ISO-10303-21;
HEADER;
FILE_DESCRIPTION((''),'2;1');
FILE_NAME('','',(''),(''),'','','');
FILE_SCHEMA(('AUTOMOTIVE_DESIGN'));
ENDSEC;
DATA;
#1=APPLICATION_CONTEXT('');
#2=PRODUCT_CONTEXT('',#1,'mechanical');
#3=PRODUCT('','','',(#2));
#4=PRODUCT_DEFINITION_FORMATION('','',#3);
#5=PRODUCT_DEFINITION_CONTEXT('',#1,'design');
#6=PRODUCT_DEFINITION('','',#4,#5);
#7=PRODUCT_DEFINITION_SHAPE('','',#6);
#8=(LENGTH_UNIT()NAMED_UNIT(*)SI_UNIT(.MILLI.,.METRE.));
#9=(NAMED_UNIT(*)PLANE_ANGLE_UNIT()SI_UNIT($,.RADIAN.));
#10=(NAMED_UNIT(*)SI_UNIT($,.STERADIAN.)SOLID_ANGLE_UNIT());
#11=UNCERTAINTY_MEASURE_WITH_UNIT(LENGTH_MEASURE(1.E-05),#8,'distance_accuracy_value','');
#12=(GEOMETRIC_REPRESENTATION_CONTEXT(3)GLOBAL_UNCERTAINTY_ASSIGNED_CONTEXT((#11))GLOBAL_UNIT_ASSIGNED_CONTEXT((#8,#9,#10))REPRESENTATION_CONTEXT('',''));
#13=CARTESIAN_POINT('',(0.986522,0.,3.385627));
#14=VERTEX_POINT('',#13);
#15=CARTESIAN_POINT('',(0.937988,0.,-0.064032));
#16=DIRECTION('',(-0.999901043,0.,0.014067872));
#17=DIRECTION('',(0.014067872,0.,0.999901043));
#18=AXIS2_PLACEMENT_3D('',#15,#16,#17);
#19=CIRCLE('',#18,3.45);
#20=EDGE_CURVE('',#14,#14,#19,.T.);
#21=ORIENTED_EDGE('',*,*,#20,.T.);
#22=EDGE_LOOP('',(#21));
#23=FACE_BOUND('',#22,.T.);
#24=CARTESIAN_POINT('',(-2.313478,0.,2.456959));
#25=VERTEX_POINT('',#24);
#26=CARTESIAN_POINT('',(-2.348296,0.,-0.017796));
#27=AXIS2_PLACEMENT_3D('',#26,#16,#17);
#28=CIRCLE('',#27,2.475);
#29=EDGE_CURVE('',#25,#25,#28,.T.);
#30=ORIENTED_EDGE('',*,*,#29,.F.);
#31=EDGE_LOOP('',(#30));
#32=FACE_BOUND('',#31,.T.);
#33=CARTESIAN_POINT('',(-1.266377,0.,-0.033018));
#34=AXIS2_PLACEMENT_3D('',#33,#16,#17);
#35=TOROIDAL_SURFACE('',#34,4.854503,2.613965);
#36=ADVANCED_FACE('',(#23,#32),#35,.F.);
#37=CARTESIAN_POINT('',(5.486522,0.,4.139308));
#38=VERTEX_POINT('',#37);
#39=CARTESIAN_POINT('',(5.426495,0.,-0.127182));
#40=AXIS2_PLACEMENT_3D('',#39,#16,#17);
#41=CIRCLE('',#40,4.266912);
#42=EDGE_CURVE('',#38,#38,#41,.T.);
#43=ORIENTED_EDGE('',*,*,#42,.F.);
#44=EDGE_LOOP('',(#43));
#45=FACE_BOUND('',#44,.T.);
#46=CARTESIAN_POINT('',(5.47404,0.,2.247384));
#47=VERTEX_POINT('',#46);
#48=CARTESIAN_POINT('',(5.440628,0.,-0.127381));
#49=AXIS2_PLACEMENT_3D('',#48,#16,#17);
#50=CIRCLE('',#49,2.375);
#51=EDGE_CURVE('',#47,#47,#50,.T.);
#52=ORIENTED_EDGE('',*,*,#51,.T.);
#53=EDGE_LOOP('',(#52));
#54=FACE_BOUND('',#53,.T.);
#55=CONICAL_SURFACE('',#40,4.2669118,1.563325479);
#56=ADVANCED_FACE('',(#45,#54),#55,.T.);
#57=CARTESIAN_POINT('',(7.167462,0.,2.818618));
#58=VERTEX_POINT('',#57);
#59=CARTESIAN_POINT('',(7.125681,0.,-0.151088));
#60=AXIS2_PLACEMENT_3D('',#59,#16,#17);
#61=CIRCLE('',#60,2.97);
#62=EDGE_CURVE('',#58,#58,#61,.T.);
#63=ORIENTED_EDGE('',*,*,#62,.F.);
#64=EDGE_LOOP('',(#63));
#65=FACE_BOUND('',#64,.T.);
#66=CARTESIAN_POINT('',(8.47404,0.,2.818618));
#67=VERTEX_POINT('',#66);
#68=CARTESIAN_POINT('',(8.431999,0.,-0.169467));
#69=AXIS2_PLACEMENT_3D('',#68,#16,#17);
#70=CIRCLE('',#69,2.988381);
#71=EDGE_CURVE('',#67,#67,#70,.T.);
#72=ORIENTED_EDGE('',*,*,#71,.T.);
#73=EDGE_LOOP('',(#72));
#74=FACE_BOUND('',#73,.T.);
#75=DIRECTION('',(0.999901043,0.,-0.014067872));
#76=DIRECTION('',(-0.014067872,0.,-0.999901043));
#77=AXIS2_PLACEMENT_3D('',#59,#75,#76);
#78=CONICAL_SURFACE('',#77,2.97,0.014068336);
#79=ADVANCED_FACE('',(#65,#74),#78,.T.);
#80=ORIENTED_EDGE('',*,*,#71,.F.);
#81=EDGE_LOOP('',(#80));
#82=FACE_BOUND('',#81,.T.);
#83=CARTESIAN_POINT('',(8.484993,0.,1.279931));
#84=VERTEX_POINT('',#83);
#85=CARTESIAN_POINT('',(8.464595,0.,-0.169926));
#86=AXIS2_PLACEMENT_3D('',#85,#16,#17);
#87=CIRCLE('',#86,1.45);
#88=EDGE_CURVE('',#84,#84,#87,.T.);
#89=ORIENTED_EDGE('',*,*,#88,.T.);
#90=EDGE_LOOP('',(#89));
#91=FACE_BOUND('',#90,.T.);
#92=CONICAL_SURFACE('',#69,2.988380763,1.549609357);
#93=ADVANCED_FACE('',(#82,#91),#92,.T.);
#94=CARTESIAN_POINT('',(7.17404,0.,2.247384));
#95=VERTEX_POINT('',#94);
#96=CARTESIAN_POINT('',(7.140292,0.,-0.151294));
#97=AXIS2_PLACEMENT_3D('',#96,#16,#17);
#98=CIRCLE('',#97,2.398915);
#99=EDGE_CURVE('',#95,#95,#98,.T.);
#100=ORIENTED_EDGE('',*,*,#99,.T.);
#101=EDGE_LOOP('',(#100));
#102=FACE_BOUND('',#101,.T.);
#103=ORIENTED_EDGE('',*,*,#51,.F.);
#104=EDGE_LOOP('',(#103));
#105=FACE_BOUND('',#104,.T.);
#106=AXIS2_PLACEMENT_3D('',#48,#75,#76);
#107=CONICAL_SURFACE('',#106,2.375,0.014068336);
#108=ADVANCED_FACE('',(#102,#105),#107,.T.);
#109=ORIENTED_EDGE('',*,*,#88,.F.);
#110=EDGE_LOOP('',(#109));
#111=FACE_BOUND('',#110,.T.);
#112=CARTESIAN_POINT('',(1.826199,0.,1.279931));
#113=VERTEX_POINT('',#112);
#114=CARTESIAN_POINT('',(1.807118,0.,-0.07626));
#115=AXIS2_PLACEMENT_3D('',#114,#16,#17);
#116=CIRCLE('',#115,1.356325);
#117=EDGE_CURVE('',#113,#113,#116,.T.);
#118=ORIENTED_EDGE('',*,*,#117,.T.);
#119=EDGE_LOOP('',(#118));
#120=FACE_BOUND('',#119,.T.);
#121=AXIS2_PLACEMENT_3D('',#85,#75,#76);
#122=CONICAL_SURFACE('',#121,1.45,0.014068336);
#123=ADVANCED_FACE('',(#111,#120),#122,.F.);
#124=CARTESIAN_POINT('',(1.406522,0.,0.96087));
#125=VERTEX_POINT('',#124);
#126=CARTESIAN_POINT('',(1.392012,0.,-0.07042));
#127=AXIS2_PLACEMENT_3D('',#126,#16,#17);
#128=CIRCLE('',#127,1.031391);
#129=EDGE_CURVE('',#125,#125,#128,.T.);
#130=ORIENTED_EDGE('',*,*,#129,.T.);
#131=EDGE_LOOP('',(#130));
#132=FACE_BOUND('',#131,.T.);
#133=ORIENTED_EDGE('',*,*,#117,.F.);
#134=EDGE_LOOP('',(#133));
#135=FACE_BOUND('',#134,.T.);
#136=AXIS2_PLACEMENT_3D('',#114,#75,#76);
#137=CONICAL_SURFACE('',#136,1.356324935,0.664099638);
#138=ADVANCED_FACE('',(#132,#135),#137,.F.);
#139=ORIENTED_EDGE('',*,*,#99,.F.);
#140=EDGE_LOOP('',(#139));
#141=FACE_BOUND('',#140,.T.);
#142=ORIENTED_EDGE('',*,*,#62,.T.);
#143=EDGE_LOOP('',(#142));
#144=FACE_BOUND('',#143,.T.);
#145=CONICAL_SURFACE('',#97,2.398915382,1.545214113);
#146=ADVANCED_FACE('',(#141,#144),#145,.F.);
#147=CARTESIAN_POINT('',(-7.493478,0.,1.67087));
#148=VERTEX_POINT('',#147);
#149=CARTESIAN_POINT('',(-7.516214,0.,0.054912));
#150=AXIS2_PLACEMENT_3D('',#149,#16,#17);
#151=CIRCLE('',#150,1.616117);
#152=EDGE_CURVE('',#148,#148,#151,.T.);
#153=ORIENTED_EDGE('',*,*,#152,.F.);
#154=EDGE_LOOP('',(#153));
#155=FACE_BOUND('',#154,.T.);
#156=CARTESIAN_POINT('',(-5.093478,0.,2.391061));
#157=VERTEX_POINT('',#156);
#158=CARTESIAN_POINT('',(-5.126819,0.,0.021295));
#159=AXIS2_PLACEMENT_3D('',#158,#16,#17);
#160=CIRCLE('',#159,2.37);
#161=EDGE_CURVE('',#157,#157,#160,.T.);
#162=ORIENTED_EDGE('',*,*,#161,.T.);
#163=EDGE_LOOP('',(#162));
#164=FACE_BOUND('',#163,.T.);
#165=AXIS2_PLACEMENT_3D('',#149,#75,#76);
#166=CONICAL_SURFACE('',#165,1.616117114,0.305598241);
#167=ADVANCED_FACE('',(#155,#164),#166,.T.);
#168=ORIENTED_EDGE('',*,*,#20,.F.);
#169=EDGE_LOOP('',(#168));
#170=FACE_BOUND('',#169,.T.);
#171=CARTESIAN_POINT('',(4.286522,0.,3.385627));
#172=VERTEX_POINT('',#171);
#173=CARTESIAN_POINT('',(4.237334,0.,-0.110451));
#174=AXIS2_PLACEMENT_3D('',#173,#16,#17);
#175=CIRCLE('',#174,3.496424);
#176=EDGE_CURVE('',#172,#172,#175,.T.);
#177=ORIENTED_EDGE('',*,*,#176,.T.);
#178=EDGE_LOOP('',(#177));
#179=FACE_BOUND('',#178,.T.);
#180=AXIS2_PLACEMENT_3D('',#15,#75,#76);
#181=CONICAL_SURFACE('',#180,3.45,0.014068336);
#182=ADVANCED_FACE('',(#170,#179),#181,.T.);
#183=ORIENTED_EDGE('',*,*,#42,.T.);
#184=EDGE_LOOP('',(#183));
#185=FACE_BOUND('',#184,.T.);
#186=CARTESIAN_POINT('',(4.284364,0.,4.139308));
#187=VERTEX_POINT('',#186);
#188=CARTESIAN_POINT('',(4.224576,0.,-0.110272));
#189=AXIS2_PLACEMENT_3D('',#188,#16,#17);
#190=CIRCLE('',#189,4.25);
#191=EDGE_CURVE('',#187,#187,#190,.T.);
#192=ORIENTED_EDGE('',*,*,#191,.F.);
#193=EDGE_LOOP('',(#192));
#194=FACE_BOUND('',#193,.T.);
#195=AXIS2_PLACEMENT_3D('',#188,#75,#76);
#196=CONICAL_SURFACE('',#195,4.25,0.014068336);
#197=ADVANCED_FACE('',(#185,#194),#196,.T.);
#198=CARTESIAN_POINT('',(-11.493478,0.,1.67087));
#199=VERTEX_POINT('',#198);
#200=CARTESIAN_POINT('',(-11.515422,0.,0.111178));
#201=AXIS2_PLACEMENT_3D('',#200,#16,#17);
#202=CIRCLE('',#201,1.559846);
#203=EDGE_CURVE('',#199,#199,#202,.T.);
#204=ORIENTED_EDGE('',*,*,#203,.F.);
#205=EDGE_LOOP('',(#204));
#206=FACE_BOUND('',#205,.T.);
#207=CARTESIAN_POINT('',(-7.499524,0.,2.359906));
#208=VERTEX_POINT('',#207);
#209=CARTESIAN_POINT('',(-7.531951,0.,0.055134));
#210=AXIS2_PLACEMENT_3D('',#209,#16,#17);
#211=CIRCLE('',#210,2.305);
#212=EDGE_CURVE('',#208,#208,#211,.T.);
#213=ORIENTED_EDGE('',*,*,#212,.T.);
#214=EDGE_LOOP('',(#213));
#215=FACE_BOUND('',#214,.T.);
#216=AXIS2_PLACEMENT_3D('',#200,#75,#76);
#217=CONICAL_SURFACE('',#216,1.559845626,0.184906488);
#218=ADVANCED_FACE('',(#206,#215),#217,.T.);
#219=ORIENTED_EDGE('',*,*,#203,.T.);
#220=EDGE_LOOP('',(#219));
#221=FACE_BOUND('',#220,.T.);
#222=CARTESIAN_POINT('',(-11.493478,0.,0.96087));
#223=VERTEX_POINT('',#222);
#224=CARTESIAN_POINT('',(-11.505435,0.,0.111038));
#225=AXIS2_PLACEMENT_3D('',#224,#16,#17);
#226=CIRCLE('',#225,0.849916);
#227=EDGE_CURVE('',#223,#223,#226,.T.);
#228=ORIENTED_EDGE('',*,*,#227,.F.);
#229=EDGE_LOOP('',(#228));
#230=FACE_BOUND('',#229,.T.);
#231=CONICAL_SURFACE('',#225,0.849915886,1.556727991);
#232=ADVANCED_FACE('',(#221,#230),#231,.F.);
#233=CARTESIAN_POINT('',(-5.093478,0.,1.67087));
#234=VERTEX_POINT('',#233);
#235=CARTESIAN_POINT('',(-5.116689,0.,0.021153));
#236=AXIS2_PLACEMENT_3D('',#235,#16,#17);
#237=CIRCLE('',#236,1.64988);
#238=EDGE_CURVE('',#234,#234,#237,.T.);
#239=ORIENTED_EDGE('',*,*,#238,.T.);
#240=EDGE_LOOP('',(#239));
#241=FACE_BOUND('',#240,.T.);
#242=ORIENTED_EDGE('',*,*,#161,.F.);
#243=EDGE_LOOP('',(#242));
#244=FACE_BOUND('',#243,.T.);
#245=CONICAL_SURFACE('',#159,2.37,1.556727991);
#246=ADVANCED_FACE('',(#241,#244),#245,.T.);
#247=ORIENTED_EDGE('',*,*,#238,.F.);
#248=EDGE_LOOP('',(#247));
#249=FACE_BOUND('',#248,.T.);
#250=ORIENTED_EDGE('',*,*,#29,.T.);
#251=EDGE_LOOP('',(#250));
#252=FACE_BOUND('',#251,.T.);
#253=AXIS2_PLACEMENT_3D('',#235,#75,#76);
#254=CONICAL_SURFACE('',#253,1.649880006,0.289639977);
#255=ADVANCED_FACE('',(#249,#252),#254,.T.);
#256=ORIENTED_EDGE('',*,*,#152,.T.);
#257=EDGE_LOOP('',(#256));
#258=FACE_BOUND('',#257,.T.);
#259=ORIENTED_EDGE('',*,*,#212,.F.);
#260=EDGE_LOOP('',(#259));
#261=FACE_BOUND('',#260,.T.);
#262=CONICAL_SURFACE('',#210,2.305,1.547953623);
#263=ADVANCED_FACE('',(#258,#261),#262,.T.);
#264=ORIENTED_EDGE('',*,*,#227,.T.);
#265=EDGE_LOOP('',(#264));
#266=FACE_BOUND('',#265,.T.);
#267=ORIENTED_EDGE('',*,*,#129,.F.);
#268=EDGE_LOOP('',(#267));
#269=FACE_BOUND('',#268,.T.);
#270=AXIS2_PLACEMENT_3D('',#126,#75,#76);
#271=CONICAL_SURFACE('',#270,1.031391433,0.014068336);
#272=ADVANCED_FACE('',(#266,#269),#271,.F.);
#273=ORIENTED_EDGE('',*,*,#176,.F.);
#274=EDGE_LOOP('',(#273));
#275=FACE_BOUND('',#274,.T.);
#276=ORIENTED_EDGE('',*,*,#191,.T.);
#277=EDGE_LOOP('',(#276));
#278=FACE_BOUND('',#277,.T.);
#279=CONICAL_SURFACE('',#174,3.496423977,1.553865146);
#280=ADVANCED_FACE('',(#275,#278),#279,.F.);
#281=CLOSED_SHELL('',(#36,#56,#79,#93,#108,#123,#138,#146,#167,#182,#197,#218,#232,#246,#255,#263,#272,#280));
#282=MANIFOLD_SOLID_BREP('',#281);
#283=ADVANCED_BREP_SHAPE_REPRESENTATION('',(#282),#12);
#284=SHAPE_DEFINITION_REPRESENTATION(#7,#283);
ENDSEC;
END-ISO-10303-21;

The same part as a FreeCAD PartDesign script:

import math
import FreeCAD as App
import Part
import Sketcher

doc = App.newDocument("Part")
body = doc.addObject("PartDesign::Body", "Body")

# Sketch on XZ plane
sketch1 = body.newObject("Sketcher::SketchObject", "Sketch")
sketch1.AttachmentSupport = (doc.getObject("XZ_Plane"), [""])
sketch1.MapMode = "FlatFace"
sketch1.addGeometry([
    Part.LineSegment(App.Vector(1.4, 1, 0), App.Vector(-11.5, 1, 0)),  # 0
    Part.LineSegment(App.Vector(-11.5, 1, 0), App.Vector(-11.5, 1.7, 0)),  # 1
    Part.LineSegment(App.Vector(-11.5, 1.7, 0), App.Vector(-7.5, 2.4, 0)),  # 2
    Part.LineSegment(App.Vector(-7.5, 2.4, 0), App.Vector(-7.5, 1.7, 0)),  # 3
    Part.LineSegment(App.Vector(-7.5, 1.7, 0), App.Vector(-5.1, 2.4, 0)),  # 4
    Part.LineSegment(App.Vector(-5.1, 2.4, 0), App.Vector(-5.1, 1.7, 0)),  # 5
    Part.LineSegment(App.Vector(-5.1, 1.7, 0), App.Vector(-2.3, 2.5, 0)),  # 6
    Part.ArcOfCircle(Part.Circle(App.Vector(-1.2, 4.8, 0), App.Vector(0, 0, 1), 2.6), math.radians(-115), math.radians(-33)),  # 7
    Part.LineSegment(App.Vector(1, 3.4, 0), App.Vector(4.3, 3.4, 0)),  # 8
    Part.LineSegment(App.Vector(4.3, 3.4, 0), App.Vector(4.3, 4.1, 0)),  # 9
    Part.LineSegment(App.Vector(4.3, 4.1, 0), App.Vector(5.5, 4.1, 0)),  # 10
    Part.LineSegment(App.Vector(5.5, 4.1, 0), App.Vector(5.5, 2.2, 0)),  # 11
    Part.LineSegment(App.Vector(5.5, 2.2, 0), App.Vector(7.2, 2.2, 0)),  # 12
    Part.LineSegment(App.Vector(7.2, 2.2, 0), App.Vector(7.2, 2.8, 0)),  # 13
    Part.LineSegment(App.Vector(7.2, 2.8, 0), App.Vector(8.5, 2.8, 0)),  # 14
    Part.LineSegment(App.Vector(8.5, 2.8, 0), App.Vector(8.5, 1.3, 0)),  # 15
    Part.LineSegment(App.Vector(8.5, 1.3, 0), App.Vector(1.8, 1.3, 0)),  # 16
    Part.LineSegment(App.Vector(1.8, 1.3, 0), App.Vector(1.4, 1, 0)),  # 17
], False)
sketch1.addGeometry(Part.LineSegment(App.Vector(-11.5, 0.1, 0), App.Vector(8.5, -0.2, 0)), True)  # axis
sketch1.addConstraint([
    Sketcher.Constraint("Coincident", 0, 2, 1, 1),
    Sketcher.Constraint("Coincident", 1, 2, 2, 1),
    Sketcher.Constraint("Coincident", 2, 2, 3, 1),
    Sketcher.Constraint("Coincident", 3, 2, 4, 1),
    Sketcher.Constraint("Coincident", 4, 2, 5, 1),
    Sketcher.Constraint("Coincident", 5, 2, 6, 1),
    Sketcher.Constraint("Coincident", 6, 2, 7, 1),
    Sketcher.Constraint("Coincident", 7, 2, 8, 1),
    Sketcher.Constraint("Coincident", 8, 2, 9, 1),
    Sketcher.Constraint("Coincident", 9, 2, 10, 1),
    Sketcher.Constraint("Coincident", 10, 2, 11, 1),
    Sketcher.Constraint("Coincident", 11, 2, 12, 1),
    Sketcher.Constraint("Coincident", 12, 2, 13, 1),
    Sketcher.Constraint("Coincident", 13, 2, 14, 1),
    Sketcher.Constraint("Coincident", 14, 2, 15, 1),
    Sketcher.Constraint("Coincident", 15, 2, 16, 1),
    Sketcher.Constraint("Coincident", 16, 2, 17, 1),
    Sketcher.Constraint("Coincident", 17, 2, 0, 1),
    Sketcher.Constraint("Horizontal", 0),
    Sketcher.Constraint("Vertical", 1),
    Sketcher.Constraint("Vertical", 5),
    Sketcher.Constraint("Horizontal", 8),
    Sketcher.Constraint("Horizontal", 10),
    Sketcher.Constraint("Horizontal", 12),
    Sketcher.Constraint("Horizontal", 14),
    Sketcher.Constraint("Horizontal", 16),
    Sketcher.Constraint("Horizontal", 1, 2, 3, 2),
    Sketcher.Constraint("Horizontal", 3, 2, 5, 2),
    Sketcher.Constraint("DistanceX", 0, 2, 0, 1, 12.9),
    Sketcher.Constraint("DistanceX", 8, 1, 8, 2, 3.3),
    Sketcher.Constraint("DistanceX", 12, 1, 12, 2, 1.7),
    Sketcher.Constraint("DistanceX", 1, 2, 3, 2, 4.0),
    Sketcher.Constraint("DistanceX", 11, 2, 14, 2, 3.0),
    Sketcher.Constraint("DistanceY", 1, 1, 1, 2, 0.71),
    Sketcher.Constraint("DistanceX", 3, 2, 4, 2, 2.4),
    Sketcher.Constraint("DistanceX", 6, 2, 7, 2, 3.3),
    Sketcher.Constraint("DistanceX", 8, 2, 10, 2, 1.2),
    Sketcher.Constraint("DistanceX", 4, 2, 6, 2, 2.78),
    Sketcher.Constraint("Radius", 7, 2.613965),
    Sketcher.Constraint("DistanceY", 5, 2, 5, 1, 0.720191),
    Sketcher.Constraint("DistanceX", -1, 1, 16, 2, 1.826199),
    Sketcher.Constraint("DistanceY", 2, 2, 7, 3, 2.461098),
    Sketcher.Constraint("DistanceX", 9, 2, 13, 2, 2.883098),
    Sketcher.Constraint("DistanceX", 18, 2, 15, 2, 0.020398),
    Sketcher.Constraint("Distance", 13, 0.571272),
    Sketcher.Constraint("Distance", 17, 0.52719),
    Sketcher.Constraint("DistanceX", 10, 1, 10, 2, 1.202158),
    Sketcher.Constraint("DistanceX", 14, 1, 14, 2, 1.306577),
    Sketcher.Constraint("DistanceX", 16, 2, 16, 1, 6.658794),
    Sketcher.Constraint("DistanceX", 0, 2, -1, 1, 11.493478),
    Sketcher.Constraint("DistanceY", -1, 1, 0, 2, 0.96087),
    Sketcher.Constraint("DistanceY", -1, 1, 6, 2, 2.456959),
    Sketcher.Constraint("DistanceX", 18, 1, -1, 1, 11.515422),
    Sketcher.Constraint("DistanceY", -1, 1, 18, 1, 0.111178),
    Sketcher.Constraint("DistanceX", 2, 2, 7, 3, 6.30144),
    Sketcher.Constraint("DistanceY", 2, 2, 7, 2, 1.025721),
    Sketcher.Constraint("DistanceY", 8, 2, 9, 2, 0.753681),
    Sketcher.Constraint("DistanceY", 11, 2, 7, 3, 2.57362),
    Sketcher.Constraint("DistanceY", 18, 2, 12, 2, 2.41731),
])
revolution = body.newObject("PartDesign::Revolution", "Revolution")
revolution.Profile = sketch1
revolution.ReferenceAxis = (sketch1, ["Axis0"])
revolution.Angle = 360

doc.recompute()
